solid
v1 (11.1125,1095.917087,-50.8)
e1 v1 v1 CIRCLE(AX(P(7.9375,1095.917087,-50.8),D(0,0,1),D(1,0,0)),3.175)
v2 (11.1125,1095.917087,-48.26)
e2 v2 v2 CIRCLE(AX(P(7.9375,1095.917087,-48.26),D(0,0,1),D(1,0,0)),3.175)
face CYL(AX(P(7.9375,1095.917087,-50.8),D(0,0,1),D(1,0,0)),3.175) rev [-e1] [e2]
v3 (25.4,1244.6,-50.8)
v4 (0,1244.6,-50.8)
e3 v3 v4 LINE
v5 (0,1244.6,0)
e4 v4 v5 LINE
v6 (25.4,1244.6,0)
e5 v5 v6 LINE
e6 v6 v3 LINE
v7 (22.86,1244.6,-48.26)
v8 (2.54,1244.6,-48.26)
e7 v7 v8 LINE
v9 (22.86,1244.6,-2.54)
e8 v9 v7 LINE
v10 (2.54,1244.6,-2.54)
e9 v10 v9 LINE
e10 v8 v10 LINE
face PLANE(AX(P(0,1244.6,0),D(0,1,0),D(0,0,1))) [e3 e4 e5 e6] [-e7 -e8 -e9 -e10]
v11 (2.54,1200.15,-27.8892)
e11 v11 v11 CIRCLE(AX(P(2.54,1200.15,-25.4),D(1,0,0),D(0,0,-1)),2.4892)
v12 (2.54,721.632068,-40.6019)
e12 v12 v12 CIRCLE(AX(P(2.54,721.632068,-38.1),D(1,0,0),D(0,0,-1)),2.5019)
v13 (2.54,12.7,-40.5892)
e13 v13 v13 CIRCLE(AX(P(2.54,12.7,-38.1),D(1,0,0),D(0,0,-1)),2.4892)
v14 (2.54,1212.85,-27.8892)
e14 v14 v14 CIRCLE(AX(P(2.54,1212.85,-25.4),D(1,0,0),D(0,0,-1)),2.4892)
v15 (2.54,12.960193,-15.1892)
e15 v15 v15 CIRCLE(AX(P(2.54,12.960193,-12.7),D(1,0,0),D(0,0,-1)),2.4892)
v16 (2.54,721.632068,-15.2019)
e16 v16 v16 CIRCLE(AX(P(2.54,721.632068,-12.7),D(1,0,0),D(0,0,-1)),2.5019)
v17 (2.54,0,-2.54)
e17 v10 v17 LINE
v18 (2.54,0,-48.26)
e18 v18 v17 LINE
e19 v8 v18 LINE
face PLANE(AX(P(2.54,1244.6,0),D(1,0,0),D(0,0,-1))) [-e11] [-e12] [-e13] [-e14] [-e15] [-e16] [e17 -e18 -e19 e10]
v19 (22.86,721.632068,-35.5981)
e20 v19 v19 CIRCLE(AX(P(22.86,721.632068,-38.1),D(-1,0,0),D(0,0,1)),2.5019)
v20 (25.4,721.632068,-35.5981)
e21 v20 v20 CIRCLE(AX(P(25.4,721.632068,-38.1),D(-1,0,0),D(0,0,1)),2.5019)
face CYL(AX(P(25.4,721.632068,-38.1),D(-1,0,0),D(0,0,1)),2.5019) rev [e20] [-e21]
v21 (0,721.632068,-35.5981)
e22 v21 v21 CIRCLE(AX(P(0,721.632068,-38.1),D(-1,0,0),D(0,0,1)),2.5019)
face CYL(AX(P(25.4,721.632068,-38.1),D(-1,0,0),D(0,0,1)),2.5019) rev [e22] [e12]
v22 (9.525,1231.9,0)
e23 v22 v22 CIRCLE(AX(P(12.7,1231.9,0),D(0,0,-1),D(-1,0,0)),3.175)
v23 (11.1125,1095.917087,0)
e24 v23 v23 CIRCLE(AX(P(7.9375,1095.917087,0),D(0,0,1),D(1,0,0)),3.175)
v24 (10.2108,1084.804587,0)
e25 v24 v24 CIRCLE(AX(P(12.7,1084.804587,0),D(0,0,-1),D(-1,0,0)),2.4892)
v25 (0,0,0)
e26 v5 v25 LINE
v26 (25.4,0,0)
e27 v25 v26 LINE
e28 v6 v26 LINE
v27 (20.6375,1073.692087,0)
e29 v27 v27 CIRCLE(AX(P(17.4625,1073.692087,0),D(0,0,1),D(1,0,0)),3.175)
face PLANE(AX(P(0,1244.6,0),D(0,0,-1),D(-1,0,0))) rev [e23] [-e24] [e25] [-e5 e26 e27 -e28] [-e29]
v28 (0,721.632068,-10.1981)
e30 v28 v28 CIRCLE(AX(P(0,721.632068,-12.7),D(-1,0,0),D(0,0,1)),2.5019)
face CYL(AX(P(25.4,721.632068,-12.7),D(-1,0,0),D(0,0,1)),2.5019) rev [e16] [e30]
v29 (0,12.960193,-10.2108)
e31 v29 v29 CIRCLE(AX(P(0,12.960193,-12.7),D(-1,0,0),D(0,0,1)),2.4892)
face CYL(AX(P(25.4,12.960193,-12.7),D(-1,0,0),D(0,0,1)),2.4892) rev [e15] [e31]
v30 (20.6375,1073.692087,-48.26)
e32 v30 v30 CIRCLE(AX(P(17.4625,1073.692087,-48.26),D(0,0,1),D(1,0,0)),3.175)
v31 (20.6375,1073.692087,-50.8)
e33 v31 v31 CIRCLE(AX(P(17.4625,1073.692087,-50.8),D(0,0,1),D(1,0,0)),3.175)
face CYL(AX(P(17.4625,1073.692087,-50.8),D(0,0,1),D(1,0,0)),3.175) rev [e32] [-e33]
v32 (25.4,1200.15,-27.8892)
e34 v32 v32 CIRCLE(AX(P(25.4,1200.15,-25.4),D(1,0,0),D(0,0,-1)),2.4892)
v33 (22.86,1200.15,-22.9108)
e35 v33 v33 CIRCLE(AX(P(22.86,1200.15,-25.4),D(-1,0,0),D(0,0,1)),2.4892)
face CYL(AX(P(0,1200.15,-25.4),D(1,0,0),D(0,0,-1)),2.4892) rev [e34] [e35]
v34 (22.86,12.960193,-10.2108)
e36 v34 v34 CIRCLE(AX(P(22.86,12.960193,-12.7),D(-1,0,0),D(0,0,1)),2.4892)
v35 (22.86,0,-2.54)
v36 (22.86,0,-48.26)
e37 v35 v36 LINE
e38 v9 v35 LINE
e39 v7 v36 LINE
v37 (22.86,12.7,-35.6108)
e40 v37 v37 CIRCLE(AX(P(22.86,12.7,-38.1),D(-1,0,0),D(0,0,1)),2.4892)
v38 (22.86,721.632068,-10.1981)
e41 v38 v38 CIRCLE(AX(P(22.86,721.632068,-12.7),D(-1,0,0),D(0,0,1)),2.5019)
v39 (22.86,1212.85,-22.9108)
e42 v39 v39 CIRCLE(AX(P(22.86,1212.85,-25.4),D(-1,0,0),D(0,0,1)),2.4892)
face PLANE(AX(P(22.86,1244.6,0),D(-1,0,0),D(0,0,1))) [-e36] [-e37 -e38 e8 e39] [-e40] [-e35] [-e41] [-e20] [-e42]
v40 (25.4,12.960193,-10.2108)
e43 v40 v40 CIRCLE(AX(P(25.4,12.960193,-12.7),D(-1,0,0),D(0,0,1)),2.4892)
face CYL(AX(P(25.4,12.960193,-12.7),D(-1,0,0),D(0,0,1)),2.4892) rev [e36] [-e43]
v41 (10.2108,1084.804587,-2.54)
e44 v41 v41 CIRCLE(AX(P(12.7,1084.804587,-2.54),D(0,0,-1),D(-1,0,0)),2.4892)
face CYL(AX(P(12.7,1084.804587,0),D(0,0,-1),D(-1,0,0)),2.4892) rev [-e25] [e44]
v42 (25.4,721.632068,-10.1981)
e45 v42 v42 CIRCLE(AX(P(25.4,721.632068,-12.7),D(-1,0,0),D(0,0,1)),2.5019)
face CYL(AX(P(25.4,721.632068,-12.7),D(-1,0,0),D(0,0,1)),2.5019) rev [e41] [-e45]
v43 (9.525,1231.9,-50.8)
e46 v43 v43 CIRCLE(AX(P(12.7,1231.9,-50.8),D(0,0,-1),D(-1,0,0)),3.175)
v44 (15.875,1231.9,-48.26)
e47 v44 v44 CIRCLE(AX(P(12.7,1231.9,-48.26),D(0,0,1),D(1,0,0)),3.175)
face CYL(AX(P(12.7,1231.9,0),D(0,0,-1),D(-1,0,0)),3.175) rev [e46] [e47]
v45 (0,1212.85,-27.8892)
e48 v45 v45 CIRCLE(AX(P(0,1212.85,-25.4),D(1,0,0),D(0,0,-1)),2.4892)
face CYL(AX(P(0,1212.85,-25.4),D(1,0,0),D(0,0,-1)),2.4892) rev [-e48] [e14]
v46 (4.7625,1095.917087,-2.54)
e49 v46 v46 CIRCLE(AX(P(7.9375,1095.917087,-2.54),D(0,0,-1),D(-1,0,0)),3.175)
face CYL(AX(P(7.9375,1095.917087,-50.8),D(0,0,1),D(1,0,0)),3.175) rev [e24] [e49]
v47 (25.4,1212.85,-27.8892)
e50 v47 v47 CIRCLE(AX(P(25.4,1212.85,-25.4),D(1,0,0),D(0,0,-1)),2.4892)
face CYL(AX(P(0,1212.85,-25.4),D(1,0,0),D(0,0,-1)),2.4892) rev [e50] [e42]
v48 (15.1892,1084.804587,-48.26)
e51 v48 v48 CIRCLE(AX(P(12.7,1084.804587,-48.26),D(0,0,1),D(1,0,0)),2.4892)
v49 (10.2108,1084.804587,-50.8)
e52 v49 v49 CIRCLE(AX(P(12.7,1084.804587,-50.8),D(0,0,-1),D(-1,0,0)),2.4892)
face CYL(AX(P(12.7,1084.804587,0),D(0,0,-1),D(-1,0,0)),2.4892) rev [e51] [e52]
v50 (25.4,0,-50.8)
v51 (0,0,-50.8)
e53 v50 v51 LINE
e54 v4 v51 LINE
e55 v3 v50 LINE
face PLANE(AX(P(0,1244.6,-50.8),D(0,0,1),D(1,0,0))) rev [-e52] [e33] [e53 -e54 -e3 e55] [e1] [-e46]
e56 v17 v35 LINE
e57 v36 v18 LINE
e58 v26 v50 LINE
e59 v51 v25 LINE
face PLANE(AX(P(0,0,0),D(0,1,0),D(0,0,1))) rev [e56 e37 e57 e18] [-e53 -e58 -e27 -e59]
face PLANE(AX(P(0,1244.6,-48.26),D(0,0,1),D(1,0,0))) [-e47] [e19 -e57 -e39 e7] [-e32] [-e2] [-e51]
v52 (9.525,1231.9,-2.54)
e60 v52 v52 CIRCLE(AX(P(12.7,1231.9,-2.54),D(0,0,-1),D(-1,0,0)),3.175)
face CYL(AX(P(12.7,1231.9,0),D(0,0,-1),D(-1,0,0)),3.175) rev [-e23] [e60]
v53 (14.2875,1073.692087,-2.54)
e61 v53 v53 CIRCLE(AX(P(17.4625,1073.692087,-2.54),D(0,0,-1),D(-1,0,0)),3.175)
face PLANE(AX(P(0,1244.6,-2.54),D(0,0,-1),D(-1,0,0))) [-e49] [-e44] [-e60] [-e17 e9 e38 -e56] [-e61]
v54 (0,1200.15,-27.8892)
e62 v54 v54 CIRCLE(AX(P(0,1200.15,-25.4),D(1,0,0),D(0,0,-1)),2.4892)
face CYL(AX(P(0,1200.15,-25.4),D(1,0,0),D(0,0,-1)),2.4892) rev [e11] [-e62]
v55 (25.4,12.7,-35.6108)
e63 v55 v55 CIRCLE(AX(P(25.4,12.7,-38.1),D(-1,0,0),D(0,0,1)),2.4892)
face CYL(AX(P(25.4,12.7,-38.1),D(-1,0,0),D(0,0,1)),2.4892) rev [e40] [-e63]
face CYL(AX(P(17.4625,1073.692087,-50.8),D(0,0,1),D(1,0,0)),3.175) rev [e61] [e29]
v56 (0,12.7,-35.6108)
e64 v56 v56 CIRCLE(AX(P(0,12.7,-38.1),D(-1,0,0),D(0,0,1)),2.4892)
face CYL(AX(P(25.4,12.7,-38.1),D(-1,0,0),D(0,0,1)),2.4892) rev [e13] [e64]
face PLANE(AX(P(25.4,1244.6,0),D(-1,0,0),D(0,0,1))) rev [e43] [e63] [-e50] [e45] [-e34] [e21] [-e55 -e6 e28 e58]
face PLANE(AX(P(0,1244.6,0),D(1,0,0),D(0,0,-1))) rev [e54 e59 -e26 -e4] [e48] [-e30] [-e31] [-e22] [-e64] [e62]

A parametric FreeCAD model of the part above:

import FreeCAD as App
import Part
import Sketcher

V = App.Vector
Q = App.Units.Quantity

doc = App.newDocument("Part")
params = doc.addObject("Spreadsheet::Sheet", "Params")
for row, (alias, value) in enumerate([
    ("sketch1_width", "1 in"),
    ("sketch1_height", "2 in"),
    ("sketch1_width2", "0.8 in"),
    ("sketch1_height2", "1.8 in"),
    ("pad1_length", "49 in"),
    ("sketch2_diameter", "0.196 in"),
    ("sketch3_diameter", "0.197 in"),
    ("sketch3_diameter2", "0.196 in"),
    ("sketch4_diameter", "0.196 in"),
    ("sketch5_diameter", "0.25 in"),
    ("sketch6_diameter", "0.25 in"),
], start=1):
    params.set(f"A{row}", alias)
    params.set(f"B{row}", "=" + value)
    params.setAlias(f"B{row}", alias)

body = doc.addObject("PartDesign::Body", "Body")

sketch1 = doc.addObject("Sketcher::SketchObject", "Sketch")
body.addObject(sketch1)
sketch1.AttachmentSupport = (doc.XZ_Plane, [""])
sketch1.MapMode = "FlatFace"
sketch1.addGeometry(Part.LineSegment(V(0, -51, 0), V(0, 0, 0)), False)
sketch1.addGeometry(Part.LineSegment(V(0, 0, 0), V(25, 0, 0)), False)
sketch1.addGeometry(Part.LineSegment(V(25, 0, 0), V(25, -51, 0)), False)
sketch1.addGeometry(Part.LineSegment(V(25, -51, 0), V(0, -51, 0)), False)
sketch1.addGeometry(Part.LineSegment(V(23, -3, 0), V(3, -3, 0)), False)
sketch1.addGeometry(Part.LineSegment(V(3, -3, 0), V(3, -48, 0)), False)
sketch1.addGeometry(Part.LineSegment(V(3, -48, 0), V(23, -48, 0)), False)
sketch1.addGeometry(Part.LineSegment(V(23, -48, 0), V(23, -3, 0)), False)
sketch1.addConstraint(Sketcher.Constraint("Coincident", 0, 2, 1, 1))
sketch1.addConstraint(Sketcher.Constraint("Coincident", 1, 2, 2, 1))
sketch1.addConstraint(Sketcher.Constraint("Coincident", 2, 2, 3, 1))
sketch1.addConstraint(Sketcher.Constraint("Coincident", 3, 2, 0, 1))
sketch1.addConstraint(Sketcher.Constraint("Coincident", 4, 2, 5, 1))
sketch1.addConstraint(Sketcher.Constraint("Coincident", 5, 2, 6, 1))
sketch1.addConstraint(Sketcher.Constraint("Coincident", 6, 2, 7, 1))
sketch1.addConstraint(Sketcher.Constraint("Coincident", 7, 2, 4, 1))
sketch1.addConstraint(Sketcher.Constraint("Vertical", 0))
sketch1.addConstraint(Sketcher.Constraint("Horizontal", 1))
sketch1.addConstraint(Sketcher.Constraint("Vertical", 2))
sketch1.addConstraint(Sketcher.Constraint("Horizontal", 3))
sketch1.addConstraint(Sketcher.Constraint("Horizontal", 4))
sketch1.addConstraint(Sketcher.Constraint("Vertical", 5))
sketch1.addConstraint(Sketcher.Constraint("Horizontal", 6))
sketch1.addConstraint(Sketcher.Constraint("Vertical", 7))
sketch1.addConstraint(Sketcher.Constraint("Coincident", 0, 2, -1, 1))
sketch1.addConstraint(Sketcher.Constraint("DistanceX", 1, 1, 1, 2, Q("1 in")))
sketch1.addConstraint(Sketcher.Constraint("DistanceY", 0, 1, 0, 2, Q("2 in")))
sketch1.addConstraint(Sketcher.Constraint("DistanceX", 4, 2, 4, 1, Q("0.8 in")))
sketch1.addConstraint(Sketcher.Constraint("DistanceY", 5, 2, 5, 1, Q("1.8 in")))
sketch1.addConstraint(Sketcher.Constraint("DistanceX", -1, 1, 4, 2, Q("0.1 in")))
sketch1.addConstraint(Sketcher.Constraint("DistanceY", 4, 2, -1, 1, Q("0.1 in")))
sketch1.setExpression("Constraints[17]", "Params.sketch1_width")
sketch1.setExpression("Constraints[18]", "Params.sketch1_height")
sketch1.setExpression("Constraints[19]", "Params.sketch1_width2")
sketch1.setExpression("Constraints[20]", "Params.sketch1_height2")
pad1 = doc.addObject("PartDesign::Pad", "Pad")
body.addObject(pad1)
pad1.Profile = sketch1
pad1.setExpression("Length", "Params.pad1_length")
pad1.Reversed = True

sketch2 = doc.addObject("Sketcher::SketchObject", "Sketch001")
body.addObject(sketch2)
sketch2.AttachmentSupport = (doc.YZ_Plane, [""])
sketch2.MapMode = "FlatFace"
sketch2.AttachmentOffset = App.Placement(V(0, 0, 1 * 25.4), App.Rotation())
sketch2.addGeometry(Part.Circle(V(1200.2, -25.4, 0), V(0, 0, 1), 2.5), False)
sketch2.addGeometry(Part.Circle(V(1212.8, -25.4, 0), V(0, 0, 1), 2.5), False)
sketch2.addConstraint(Sketcher.Constraint("Equal", 0, 1))
sketch2.addConstraint(Sketcher.Constraint("Horizontal", 0, 3, 1, 3))
sketch2.addConstraint(Sketcher.Constraint("Diameter", 0, Q("0.196 in")))
sketch2.addConstraint(Sketcher.Constraint("DistanceY", 0, 3, -1, 1, Q("1 in")))
sketch2.addConstraint(Sketcher.Constraint("DistanceX", 0, 3, 1, 3, Q("0.5 in")))
sketch2.addConstraint(Sketcher.Constraint("DistanceX", -1, 1, 0, 3, Q("47.25 in")))
sketch2.setExpression("Constraints[2]", "Params.sketch2_diameter")
pocket1 = doc.addObject("PartDesign::Pocket", "Pocket")
body.addObject(pocket1)
pocket1.Profile = sketch2
pocket1.Type = "ThroughAll"

sketch3 = doc.addObject("Sketcher::SketchObject", "Sketch002")
body.addObject(sketch3)
sketch3.AttachmentSupport = (doc.YZ_Plane, [""])
sketch3.MapMode = "FlatFace"
sketch3.addGeometry(Part.Circle(V(721.6, -12.7, 0), V(0, 0, 1), 2.5), False)
sketch3.addGeometry(Part.Circle(V(721.6, -38.1, 0), V(0, 0, 1), 2.5), False)
sketch3.addGeometry(Part.Circle(V(13, -12.7, 0), V(0, 0, 1), 2.5), False)
sketch3.addGeometry(Part.Circle(V(12.7, -38.1, 0), V(0, 0, 1), 2.5), False)
sketch3.addConstraint(Sketcher.Constraint("Equal", 0, 1))
sketch3.addConstraint(Sketcher.Constraint("Equal", 2, 3))
sketch3.addConstraint(Sketcher.Constraint("Horizontal", 0, 3, 2, 3))
sketch3.addConstraint(Sketcher.Constraint("Horizontal", 1, 3, 3, 3))
sketch3.addConstraint(Sketcher.Constraint("Vertical", 0, 3, 1, 3))
sketch3.addConstraint(Sketcher.Constraint("Diameter", 0, Q("0.197 in")))
sketch3.addConstraint(Sketcher.Constraint("Diameter", 2, Q("0.196 in")))
sketch3.addConstraint(Sketcher.Constraint("DistanceY", 1, 3, 0, 3, Q("1 in")))
sketch3.addConstraint(Sketcher.Constraint("DistanceY", 0, 3, -1, 1, Q("0.5 in")))
sketch3.addConstraint(Sketcher.Constraint("DistanceX", -1, 1, 3, 3, Q("0.5 in")))
sketch3.addConstraint(Sketcher.Constraint("DistanceX", -1, 1, 0, 3, Q("721.632068 mm")))
sketch3.addConstraint(Sketcher.Constraint("DistanceX", -1, 1, 2, 3, Q("12.960193 mm")))
sketch3.setExpression("Constraints[5]", "Params.sketch3_diameter")
sketch3.setExpression("Constraints[6]", "Params.sketch3_diameter2")
pocket2 = doc.addObject("PartDesign::Pocket", "Pocket001")
body.addObject(pocket2)
pocket2.Profile = sketch3
pocket2.Type = "ThroughAll"
pocket2.Reversed = True

sketch4 = doc.addObject("Sketcher::SketchObject", "Sketch003")
body.addObject(sketch4)
sketch4.AttachmentSupport = (doc.XY_Plane, [""])
sketch4.MapMode = "FlatFace"
sketch4.AttachmentOffset = App.Placement(V(0, 0, -2 * 25.4), App.Rotation())
sketch4.addGeometry(Part.Circle(V(12.7, 1084.804587, 0), V(0, 0, 1), 2.4892), False)
sketch4.addConstraint(Sketcher.Constraint("Diameter", 0, Q("0.196 in")))
sketch4.addConstraint(Sketcher.Constraint("DistanceX", -1, 1, 0, 3, Q("0.5 in")))
sketch4.addConstraint(Sketcher.Constraint("DistanceY", -1, 1, 0, 3, Q("1084.804587 mm")))
sketch4.setExpression("Constraints[0]", "Params.sketch4_diameter")
pocket3 = doc.addObject("PartDesign::Pocket", "Pocket002")
body.addObject(pocket3)
pocket3.Profile = sketch4
pocket3.Type = "ThroughAll"
pocket3.Reversed = True

sketch5 = doc.addObject("Sketcher::SketchObject", "Sketch004")
body.addObject(sketch5)
sketch5.AttachmentSupport = (doc.XY_Plane, [""])
sketch5.MapMode = "FlatFace"
sketch5.AttachmentOffset = App.Placement(V(0, 0, -2 * 25.4), App.Rotation())
sketch5.addGeometry(Part.Circle(V(12.7, 1231.9, 0), V(0, 0, 1), 3.2), False)
sketch5.addConstraint(Sketcher.Constraint("Diameter", 0, Q("0.25 in")))
sketch5.addConstraint(Sketcher.Constraint("DistanceX", -1, 1, 0, 3, Q("0.5 in")))
sketch5.addConstraint(Sketcher.Constraint("DistanceY", -1, 1, 0, 3, Q("48.5 in")))
sketch5.setExpression("Constraints[0]", "Params.sketch5_diameter")
pocket4 = doc.addObject("PartDesign::Pocket", "Pocket003")
body.addObject(pocket4)
pocket4.Profile = sketch5
pocket4.Type = "ThroughAll"
pocket4.Reversed = True

sketch6 = doc.addObject("Sketcher::SketchObject", "Sketch005")
body.addObject(sketch6)
sketch6.AttachmentSupport = (doc.XY_Plane, [""])
sketch6.MapMode = "FlatFace"
sketch6.addGeometry(Part.Circle(V(7.9, 1095.9, 0), V(0, 0, 1), 3.2), False)
sketch6.addGeometry(Part.Circle(V(17.5, 1073.7, 0), V(0, 0, 1), 3.2), False)
sketch6.addConstraint(Sketcher.Constraint("Equal", 0, 1))
sketch6.addConstraint(Sketcher.Constraint("Diameter", 0, Q("0.25 in")))
sketch6.addConstraint(Sketcher.Constraint("DistanceX", -1, 1, 0, 3, Q("0.3125 in")))
sketch6.addConstraint(Sketcher.Constraint("DistanceX", -1, 1, 1, 3, Q("0.6875 in")))
sketch6.addConstraint(Sketcher.Constraint("DistanceY", 1, 3, 0, 3, Q("0.875 in")))
sketch6.addConstraint(Sketcher.Constraint("DistanceY", -1, 1, 0, 3, Q("1095.917087 mm")))
sketch6.setExpression("Constraints[1]", "Params.sketch6_diameter")
pocket5 = doc.addObject("PartDesign::Pocket", "Pocket004")
body.addObject(pocket5)
pocket5.Profile = sketch6
pocket5.Type = "ThroughAll"

doc.recompute()
